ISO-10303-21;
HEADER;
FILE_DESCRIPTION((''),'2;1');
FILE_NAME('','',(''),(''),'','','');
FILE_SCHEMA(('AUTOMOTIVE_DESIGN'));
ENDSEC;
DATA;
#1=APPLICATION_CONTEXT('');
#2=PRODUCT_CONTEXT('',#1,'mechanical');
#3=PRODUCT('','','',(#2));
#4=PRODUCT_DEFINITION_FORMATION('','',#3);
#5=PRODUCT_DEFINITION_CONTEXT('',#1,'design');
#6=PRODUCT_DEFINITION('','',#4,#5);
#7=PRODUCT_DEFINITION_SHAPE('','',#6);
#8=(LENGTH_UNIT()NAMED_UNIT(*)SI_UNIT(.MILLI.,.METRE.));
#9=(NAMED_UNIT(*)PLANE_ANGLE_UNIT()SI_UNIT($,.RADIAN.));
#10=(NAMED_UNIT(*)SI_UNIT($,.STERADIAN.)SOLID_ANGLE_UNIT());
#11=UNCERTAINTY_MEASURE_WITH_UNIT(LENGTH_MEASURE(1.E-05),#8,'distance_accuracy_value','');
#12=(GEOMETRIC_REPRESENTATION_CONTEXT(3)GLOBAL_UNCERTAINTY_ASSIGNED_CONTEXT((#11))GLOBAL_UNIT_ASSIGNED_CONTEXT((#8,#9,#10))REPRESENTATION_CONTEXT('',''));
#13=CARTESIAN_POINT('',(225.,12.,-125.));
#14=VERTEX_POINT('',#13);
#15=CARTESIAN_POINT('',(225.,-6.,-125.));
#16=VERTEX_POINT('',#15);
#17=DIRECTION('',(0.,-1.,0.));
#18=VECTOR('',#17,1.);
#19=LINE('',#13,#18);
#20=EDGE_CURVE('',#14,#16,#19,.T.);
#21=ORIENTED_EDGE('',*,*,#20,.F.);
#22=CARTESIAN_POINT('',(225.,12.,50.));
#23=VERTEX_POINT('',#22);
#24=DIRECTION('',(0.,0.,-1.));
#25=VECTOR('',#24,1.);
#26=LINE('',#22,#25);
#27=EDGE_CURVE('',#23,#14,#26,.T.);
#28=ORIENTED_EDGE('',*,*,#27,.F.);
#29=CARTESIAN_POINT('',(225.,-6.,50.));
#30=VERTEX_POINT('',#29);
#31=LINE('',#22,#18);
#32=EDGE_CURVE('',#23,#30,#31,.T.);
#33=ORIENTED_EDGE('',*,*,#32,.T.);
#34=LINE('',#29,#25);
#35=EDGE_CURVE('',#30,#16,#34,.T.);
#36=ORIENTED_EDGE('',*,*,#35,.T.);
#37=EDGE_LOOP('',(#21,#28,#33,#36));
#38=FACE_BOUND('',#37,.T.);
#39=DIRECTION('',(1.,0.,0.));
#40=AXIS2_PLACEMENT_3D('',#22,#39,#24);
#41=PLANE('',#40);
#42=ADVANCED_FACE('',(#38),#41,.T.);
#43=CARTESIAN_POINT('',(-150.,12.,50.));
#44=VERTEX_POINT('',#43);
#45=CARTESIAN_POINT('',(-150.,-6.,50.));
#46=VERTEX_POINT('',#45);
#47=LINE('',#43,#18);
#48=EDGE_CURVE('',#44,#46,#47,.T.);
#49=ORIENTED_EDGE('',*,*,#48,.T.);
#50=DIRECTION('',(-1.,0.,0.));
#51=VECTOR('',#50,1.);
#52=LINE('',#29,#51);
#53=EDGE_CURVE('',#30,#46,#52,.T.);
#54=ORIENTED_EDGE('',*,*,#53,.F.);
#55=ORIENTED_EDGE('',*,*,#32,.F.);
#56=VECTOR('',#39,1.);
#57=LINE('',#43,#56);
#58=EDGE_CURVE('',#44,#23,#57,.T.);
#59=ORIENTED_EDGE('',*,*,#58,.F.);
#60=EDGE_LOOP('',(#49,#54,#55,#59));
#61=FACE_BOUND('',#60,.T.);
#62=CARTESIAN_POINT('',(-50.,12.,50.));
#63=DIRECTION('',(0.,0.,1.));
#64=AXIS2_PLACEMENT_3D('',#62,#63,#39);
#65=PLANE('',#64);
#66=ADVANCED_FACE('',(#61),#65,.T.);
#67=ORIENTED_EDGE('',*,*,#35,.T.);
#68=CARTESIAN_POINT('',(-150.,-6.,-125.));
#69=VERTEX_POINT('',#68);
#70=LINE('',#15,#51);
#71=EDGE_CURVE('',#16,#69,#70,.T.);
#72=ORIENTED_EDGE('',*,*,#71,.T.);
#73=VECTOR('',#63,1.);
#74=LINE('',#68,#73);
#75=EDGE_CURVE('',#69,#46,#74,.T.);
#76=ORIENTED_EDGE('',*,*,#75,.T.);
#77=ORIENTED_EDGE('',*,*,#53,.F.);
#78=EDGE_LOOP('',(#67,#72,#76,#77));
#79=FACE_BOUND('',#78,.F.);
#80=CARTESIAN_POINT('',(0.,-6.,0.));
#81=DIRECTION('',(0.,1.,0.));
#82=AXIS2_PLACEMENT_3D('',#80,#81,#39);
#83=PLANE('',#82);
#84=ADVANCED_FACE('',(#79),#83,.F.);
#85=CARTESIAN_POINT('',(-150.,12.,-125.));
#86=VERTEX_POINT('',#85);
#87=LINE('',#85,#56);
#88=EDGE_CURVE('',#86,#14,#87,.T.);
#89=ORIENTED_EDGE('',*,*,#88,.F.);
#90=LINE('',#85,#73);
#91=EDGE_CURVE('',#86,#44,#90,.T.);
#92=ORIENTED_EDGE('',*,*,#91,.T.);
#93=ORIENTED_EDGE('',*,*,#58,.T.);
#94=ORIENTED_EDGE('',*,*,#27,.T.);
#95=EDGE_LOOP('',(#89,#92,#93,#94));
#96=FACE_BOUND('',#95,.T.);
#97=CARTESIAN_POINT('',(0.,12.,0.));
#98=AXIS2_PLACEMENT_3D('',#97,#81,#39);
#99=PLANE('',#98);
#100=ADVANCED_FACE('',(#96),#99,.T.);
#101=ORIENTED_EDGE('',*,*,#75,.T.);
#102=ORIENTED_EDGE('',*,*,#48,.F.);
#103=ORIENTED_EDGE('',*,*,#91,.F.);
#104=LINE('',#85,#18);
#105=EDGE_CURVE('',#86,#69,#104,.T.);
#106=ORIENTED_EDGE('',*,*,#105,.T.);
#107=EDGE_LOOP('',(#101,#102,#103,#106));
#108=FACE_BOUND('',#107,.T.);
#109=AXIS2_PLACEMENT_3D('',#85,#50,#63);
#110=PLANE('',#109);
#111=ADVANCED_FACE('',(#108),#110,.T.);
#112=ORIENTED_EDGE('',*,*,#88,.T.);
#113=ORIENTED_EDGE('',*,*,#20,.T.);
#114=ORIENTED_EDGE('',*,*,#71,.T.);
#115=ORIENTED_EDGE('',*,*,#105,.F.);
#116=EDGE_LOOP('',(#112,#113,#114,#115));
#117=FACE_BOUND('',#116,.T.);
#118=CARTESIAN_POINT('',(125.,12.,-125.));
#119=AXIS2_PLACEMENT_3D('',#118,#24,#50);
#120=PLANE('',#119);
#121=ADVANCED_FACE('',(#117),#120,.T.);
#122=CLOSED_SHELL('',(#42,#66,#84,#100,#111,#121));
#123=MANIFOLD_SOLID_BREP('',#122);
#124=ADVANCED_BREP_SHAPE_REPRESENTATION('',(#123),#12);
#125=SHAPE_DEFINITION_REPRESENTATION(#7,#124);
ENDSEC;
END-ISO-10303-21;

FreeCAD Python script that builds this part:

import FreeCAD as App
import Part
import Sketcher
Q = App.Units.Quantity

doc = App.newDocument("Part")
body = doc.addObject("PartDesign::Body", "Body")

sketch1 = body.newObject("Sketcher::SketchObject", "Sketch")
sketch1.AttachmentSupport = (doc.getObject("XZ_Plane"), [""])
sketch1.MapMode = "FlatFace"
sketch1.addGeometry(Part.LineSegment(App.Vector(-50, -125, 0), App.Vector(-50, 50, 0)), False)
sketch1.addGeometry(Part.LineSegment(App.Vector(-50, 50, 0), App.Vector(125, 50, 0)), False)
sketch1.addGeometry(Part.LineSegment(App.Vector(125, 50, 0), App.Vector(125, -125, 0)), False)
sketch1.addGeometry(Part.LineSegment(App.Vector(125, -125, 0), App.Vector(-50, -125, 0)), False)
sketch1.addConstraint(Sketcher.Constraint("Coincident", 0, 2, 1, 1))
sketch1.addConstraint(Sketcher.Constraint("Coincident", 1, 2, 2, 1))
sketch1.addConstraint(Sketcher.Constraint("Coincident", 2, 2, 3, 1))
sketch1.addConstraint(Sketcher.Constraint("Coincident", 3, 2, 0, 1))
sketch1.addConstraint(Sketcher.Constraint("Vertical", 0))
sketch1.addConstraint(Sketcher.Constraint("Horizontal", 1))
sketch1.addConstraint(Sketcher.Constraint("Vertical", 2))
sketch1.addConstraint(Sketcher.Constraint("Horizontal", 3))
sketch1.addConstraint(Sketcher.Constraint("Equal", 3, 0))
sketch1.addConstraint(Sketcher.Constraint("DistanceX", 1, 1, 1, 2, Q("175 mm")))
sketch1.addConstraint(Sketcher.Constraint("DistanceX", 0, 2, -1, 1, Q("50 mm")))
sketch1.addConstraint(Sketcher.Constraint("DistanceY", -1, 1, 0, 2, Q("50 mm")))
pad1 = body.newObject("PartDesign::Pad", "Pad")
pad1.Profile = sketch1
pad1.Length = 12
pad1.Reversed = True

sketch2 = body.newObject("Sketcher::SketchObject", "Sketch001")
sketch2.AttachmentSupport = (doc.getObject("XZ_Plane"), [""])
sketch2.MapMode = "FlatFace"
sketch2.AttachmentOffset = App.Placement(App.Vector(0, 0, -12), App.Rotation())
sketch2.addGeometry(Part.LineSegment(App.Vector(-150, -125, 0), App.Vector(-150, 50, 0)), False)
sketch2.addGeometry(Part.LineSegment(App.Vector(-150, 50, 0), App.Vector(225, 50, 0)), False)
sketch2.addGeometry(Part.LineSegment(App.Vector(225, 50, 0), App.Vector(225, -125, 0)), False)
sketch2.addGeometry(Part.LineSegment(App.Vector(225, -125, 0), App.Vector(-150, -125, 0)), False)
sketch2.addConstraint(Sketcher.Constraint("Coincident", 0, 2, 1, 1))
sketch2.addConstraint(Sketcher.Constraint("Coincident", 1, 2, 2, 1))
sketch2.addConstraint(Sketcher.Constraint("Coincident", 2, 2, 3, 1))
sketch2.addConstraint(Sketcher.Constraint("Coincident", 3, 2, 0, 1))
sketch2.addConstraint(Sketcher.Constraint("Vertical", 0))
sketch2.addConstraint(Sketcher.Constraint("Horizontal", 1))
sketch2.addConstraint(Sketcher.Constraint("Vertical", 2))
sketch2.addConstraint(Sketcher.Constraint("Horizontal", 3))
sketch2.addConstraint(Sketcher.Constraint("DistanceX", 1, 1, 1, 2, Q("375 mm")))
sketch2.addConstraint(Sketcher.Constraint("DistanceY", 0, 1, 0, 2, Q("175 mm")))
sketch2.addConstraint(Sketcher.Constraint("DistanceX", 0, 2, -1, 1, Q("150 mm")))
sketch2.addConstraint(Sketcher.Constraint("DistanceY", -1, 1, 0, 2, Q("50 mm")))
pad2 = body.newObject("PartDesign::Pad", "Pad001")
pad2.Profile = sketch2
pad2.Length = 18

doc.recompute()
